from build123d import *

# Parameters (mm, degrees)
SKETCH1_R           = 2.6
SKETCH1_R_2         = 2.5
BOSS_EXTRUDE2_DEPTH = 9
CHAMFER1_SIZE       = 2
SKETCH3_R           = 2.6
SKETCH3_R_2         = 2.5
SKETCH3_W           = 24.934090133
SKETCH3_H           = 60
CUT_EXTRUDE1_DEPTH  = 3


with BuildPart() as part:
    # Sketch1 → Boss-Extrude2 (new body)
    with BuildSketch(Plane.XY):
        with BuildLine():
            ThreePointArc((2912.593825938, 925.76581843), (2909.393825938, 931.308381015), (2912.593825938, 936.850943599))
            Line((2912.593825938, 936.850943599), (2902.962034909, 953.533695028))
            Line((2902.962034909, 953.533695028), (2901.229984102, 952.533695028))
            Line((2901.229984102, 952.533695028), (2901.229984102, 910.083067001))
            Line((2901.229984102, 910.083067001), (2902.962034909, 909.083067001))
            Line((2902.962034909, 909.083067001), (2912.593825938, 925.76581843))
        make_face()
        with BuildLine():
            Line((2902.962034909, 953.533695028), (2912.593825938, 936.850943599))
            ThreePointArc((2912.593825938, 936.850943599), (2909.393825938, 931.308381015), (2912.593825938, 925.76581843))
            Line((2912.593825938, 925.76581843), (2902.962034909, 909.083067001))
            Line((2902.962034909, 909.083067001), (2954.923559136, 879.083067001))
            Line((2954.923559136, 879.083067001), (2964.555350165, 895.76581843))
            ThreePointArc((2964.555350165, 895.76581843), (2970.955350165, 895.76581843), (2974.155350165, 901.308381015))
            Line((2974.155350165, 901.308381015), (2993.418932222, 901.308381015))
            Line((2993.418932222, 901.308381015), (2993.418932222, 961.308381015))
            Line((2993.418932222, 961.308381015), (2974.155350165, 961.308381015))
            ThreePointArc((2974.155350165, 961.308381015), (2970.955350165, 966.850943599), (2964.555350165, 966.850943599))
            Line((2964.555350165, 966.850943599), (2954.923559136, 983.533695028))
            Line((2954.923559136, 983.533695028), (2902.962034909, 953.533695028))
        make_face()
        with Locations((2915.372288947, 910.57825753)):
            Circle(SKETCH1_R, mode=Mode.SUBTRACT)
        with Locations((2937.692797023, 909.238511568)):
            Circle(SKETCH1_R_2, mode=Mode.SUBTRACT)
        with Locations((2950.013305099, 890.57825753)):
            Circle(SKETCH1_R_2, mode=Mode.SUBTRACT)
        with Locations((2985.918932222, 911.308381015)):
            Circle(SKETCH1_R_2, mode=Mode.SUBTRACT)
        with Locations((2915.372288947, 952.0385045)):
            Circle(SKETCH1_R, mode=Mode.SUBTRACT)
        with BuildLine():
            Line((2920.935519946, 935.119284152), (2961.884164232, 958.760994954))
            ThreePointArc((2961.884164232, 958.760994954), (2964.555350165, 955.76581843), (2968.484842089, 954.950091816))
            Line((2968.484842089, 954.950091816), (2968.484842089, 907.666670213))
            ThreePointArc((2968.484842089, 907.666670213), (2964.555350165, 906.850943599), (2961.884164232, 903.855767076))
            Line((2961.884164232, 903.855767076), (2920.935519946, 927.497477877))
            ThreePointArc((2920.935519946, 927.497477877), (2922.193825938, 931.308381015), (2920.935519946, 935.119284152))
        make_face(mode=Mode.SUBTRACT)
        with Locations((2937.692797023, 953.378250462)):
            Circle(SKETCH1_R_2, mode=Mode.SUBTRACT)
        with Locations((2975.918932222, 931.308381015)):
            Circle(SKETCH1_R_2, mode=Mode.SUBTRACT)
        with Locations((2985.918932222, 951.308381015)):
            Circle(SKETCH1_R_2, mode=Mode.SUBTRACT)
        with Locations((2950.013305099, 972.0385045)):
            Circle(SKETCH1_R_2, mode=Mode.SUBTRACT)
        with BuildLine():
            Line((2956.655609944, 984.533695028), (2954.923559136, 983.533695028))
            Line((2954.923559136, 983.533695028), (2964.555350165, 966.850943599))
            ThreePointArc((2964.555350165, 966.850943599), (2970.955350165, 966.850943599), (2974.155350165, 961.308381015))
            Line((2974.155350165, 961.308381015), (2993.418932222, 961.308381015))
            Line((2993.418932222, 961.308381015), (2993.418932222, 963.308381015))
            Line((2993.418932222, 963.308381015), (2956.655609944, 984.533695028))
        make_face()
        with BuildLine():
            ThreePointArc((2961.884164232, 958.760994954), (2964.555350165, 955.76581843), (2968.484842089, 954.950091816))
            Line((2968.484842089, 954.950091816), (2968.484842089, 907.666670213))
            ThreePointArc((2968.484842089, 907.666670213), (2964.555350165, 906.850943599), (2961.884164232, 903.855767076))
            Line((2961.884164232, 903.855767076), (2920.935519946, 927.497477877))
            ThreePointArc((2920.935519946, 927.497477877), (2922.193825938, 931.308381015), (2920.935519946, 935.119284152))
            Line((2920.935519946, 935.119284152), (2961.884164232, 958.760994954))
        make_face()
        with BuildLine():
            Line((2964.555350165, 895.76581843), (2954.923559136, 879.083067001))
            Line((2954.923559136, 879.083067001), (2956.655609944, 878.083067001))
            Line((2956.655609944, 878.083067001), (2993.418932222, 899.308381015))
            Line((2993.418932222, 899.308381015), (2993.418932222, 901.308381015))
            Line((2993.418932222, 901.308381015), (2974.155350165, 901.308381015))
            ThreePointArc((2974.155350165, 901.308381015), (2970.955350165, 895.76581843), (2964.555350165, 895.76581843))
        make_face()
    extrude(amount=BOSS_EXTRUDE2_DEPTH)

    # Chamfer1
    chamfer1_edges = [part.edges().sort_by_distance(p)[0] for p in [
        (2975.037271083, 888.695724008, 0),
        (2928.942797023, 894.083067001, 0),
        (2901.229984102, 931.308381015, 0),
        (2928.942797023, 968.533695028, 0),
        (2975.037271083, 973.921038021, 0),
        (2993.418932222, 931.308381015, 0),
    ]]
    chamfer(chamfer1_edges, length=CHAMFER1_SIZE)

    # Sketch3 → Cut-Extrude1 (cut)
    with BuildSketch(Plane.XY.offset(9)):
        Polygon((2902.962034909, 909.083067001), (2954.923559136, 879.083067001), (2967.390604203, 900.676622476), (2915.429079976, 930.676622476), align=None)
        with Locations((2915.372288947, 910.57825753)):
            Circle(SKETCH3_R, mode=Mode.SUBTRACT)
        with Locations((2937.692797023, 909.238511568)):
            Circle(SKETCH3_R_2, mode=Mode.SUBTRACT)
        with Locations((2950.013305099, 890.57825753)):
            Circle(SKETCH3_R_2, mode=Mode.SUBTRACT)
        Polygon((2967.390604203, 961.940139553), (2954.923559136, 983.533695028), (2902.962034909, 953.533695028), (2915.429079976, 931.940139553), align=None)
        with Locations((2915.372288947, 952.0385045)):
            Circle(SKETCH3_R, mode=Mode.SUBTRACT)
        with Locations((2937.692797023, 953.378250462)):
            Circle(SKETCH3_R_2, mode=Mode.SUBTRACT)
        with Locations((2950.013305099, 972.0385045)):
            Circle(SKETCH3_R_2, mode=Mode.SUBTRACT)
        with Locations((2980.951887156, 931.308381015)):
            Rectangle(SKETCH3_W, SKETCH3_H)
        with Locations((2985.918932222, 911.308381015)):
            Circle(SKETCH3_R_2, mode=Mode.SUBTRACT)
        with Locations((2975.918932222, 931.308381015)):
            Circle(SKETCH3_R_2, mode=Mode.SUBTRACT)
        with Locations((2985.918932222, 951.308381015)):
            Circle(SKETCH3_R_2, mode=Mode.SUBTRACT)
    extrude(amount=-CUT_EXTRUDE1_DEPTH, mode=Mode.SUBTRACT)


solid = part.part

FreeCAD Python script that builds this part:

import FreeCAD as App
import Part
import Sketcher
from FreeCAD import Vector
Q = App.Units.Quantity


def edges_at(feature, points):
    """Names of the edges that pass closest to the given points."""
    edges = feature.Shape.Edges
    near = lambda p: min(range(len(edges)), key=lambda i: edges[i].distToShape(Part.Vertex(*p))[0])
    return sorted({f"Edge{near(p) + 1}" for p in points})


def add_polygon(sketch, points):
    """Adds a closed chain of lines whose ends are joined by coincident constraints."""
    first, n = sketch.GeometryCount, len(points)
    for a, b in zip(points, points[1:] + points[:1]):
        sketch.addGeometry(Part.LineSegment(App.Vector(*a, 0), App.Vector(*b, 0)), False)
    for i in range(n):
        sketch.addConstraint(Sketcher.Constraint("Coincident", first + i, 2, first + (i + 1) % n, 1))

doc = App.newDocument("Part")
params = doc.addObject("Spreadsheet::Sheet", "Params")
for row, (alias, value) in enumerate([
    ("sketch1_diameter", "5 mm"),
    ("sketch1_diameter2", "5.2 mm"),
    ("sketch1_height", "64 mm"),
    ("sketch1_length", "2 mm"),
    ("sketch1_length2", "60 mm"),
    ("pad1_length", "9 mm"),
    ("chamfer_size", "2 mm"),
    ("sketch2_diameter", "5 mm"),
    ("sketch2_diameter2", "5.2 mm"),
    ("sketch2_height", "60 mm"),
    ("sketch2_length", "60 mm"),
    ("pocket1_length", "3 mm"),
], start=1):
    params.set(f"A{row}", alias)
    params.set(f"B{row}", "=" + value)
    params.setAlias(f"B{row}", alias)

body = doc.addObject("PartDesign::Body", "Body")

sketch1 = body.newObject("Sketcher::SketchObject", "Sketch")
sketch1.AttachmentSupport = (doc.getObject("XY_Plane"), [""])
sketch1.MapMode = "FlatFace"
add_polygon(sketch1, [(2903, 953.5), (2901.2, 952.5), (2901.2, 910.1), (2903, 909.1), (2954.9, 879.1), (2956.7, 878.1), (2993.4, 899.3), (2993.4, 963.3), (2956.7, 984.5), (2954.9, 983.5)])
sketch1.addGeometry(Part.Circle(Vector(2950, 890.6, 0), Vector(0, 0, 1), 2.5), False)
sketch1.addGeometry(Part.Circle(Vector(2937.7, 909.2, 0), Vector(0, 0, 1), 2.5), False)
sketch1.addGeometry(Part.Circle(Vector(2915.4, 910.6, 0), Vector(0, 0, 1), 2.6), False)
sketch1.addGeometry(Part.Circle(Vector(2985.9, 911.3, 0), Vector(0, 0, 1), 2.5), False)
sketch1.addGeometry(Part.Circle(Vector(2915.4, 952, 0), Vector(0, 0, 1), 2.6), False)
sketch1.addGeometry(Part.Circle(Vector(2937.7, 953.4, 0), Vector(0, 0, 1), 2.5), False)
sketch1.addGeometry(Part.Circle(Vector(2950, 972, 0), Vector(0, 0, 1), 2.5), False)
sketch1.addGeometry(Part.Circle(Vector(2975.9, 931.3, 0), Vector(0, 0, 1), 2.5), False)
sketch1.addGeometry(Part.Circle(Vector(2985.9, 951.3, 0), Vector(0, 0, 1), 2.5), False)
sketch1.addConstraint(Sketcher.Constraint("Vertical", 1))
sketch1.addConstraint(Sketcher.Constraint("Vertical", 6))
sketch1.addConstraint(Sketcher.Constraint("Equal", 10, 11))
sketch1.addConstraint(Sketcher.Constraint("Equal", 11, 13))
sketch1.addConstraint(Sketcher.Constraint("Equal", 12, 14))
sketch1.addConstraint(Sketcher.Constraint("Equal", 13, 15))
sketch1.addConstraint(Sketcher.Constraint("Equal", 15, 16))
sketch1.addConstraint(Sketcher.Constraint("Equal", 16, 17))
sketch1.addConstraint(Sketcher.Constraint("Equal", 17, 18))
sketch1.addConstraint(Sketcher.Constraint("Parallel", 2, 3))
sketch1.addConstraint(Sketcher.Constraint("Parallel", 3, 4))
sketch1.addConstraint(Sketcher.Constraint("Parallel", 0, 5))
sketch1.addConstraint(Sketcher.Constraint("Parallel", 4, 7))
sketch1.addConstraint(Sketcher.Constraint("Parallel", 5, 8))
sketch1.addConstraint(Sketcher.Constraint("Parallel", 8, 9))
sketch1.addConstraint(Sketcher.Constraint("Vertical", 12, 3, 14, 3))
sketch1.addConstraint(Sketcher.Constraint("Vertical", 11, 3, 15, 3))
sketch1.addConstraint(Sketcher.Constraint("Vertical", 10, 3, 16, 3))
sketch1.addConstraint(Sketcher.Constraint("Vertical", 13, 3, 18, 3))
sketch1.addConstraint(Sketcher.Constraint("Vertical", 4, 2, 7, 2))
sketch1.addConstraint(Sketcher.Constraint("Vertical", 3, 2, 8, 2))
sketch1.addConstraint(Sketcher.Constraint("Vertical", 2, 2, 9, 2))
sketch1.addConstraint(Sketcher.Constraint("Equal", 0, 2))
sketch1.addConstraint(Sketcher.Constraint("Equal", 2, 4))
sketch1.addConstraint(Sketcher.Constraint("Diameter", 10, 5.0))
sketch1.addConstraint(Sketcher.Constraint("Diameter", 12, 5.2))
sketch1.addConstraint(Sketcher.Constraint("DistanceY", 6, 1, 6, 2, 64.0))
sketch1.addConstraint(Sketcher.Constraint("Angle", 0, Q("-150 deg")))
sketch1.addConstraint(Sketcher.Constraint("Distance", 0, 2.0))
sketch1.addConstraint(Sketcher.Constraint("Distance", 3, 60.0))
sketch1.addConstraint(Sketcher.Constraint("DistanceY", 10, 3, 12, 3, 20.0))
sketch1.addConstraint(Sketcher.Constraint("DistanceY", 14, 3, 16, 3, 20.0))
sketch1.addConstraint(Sketcher.Constraint("DistanceX", 17, 3, 13, 3, 10.0))
sketch1.addConstraint(Sketcher.Constraint("DistanceY", 13, 3, 17, 3, 20.0))
sketch1.addConstraint(Sketcher.Constraint("DistanceY", 17, 3, 18, 3, 20.0))
sketch1.addConstraint(Sketcher.Constraint("DistanceY", 5, 2, 13, 3, 12.0))
sketch1.addConstraint(Sketcher.Constraint("DistanceX", 13, 3, 5, 2, 7.5))
sketch1.addConstraint(Sketcher.Constraint("DistanceY", 1, 2, 1, 1, 42.450628))
sketch1.addConstraint(Sketcher.Constraint("DistanceY", -1, 1, 11, 3, 909.238512))
sketch1.addConstraint(Sketcher.Constraint("DistanceX", -1, 1, 12, 3, 2915.372289))
sketch1.addConstraint(Sketcher.Constraint("DistanceY", -1, 1, 13, 3, 911.308381))
sketch1.addConstraint(Sketcher.Constraint("DistanceY", -1, 1, 15, 3, 953.37825))
sketch1.addConstraint(Sketcher.Constraint("DistanceX", -1, 1, 3, 2, 2954.923559))
sketch1.addConstraint(Sketcher.Constraint("DistanceX", 11, 3, 10, 3, 12.320508))
sketch1.addConstraint(Sketcher.Constraint("DistanceX", 12, 3, 11, 3, 22.320508))
sketch1.addConstraint(Sketcher.Constraint("DistanceY", 14, 3, 0, 2, 0.495191))
sketch1.addConstraint(Sketcher.Constraint("DistanceY", 1, 2, 12, 3, 0.495191))
sketch1.setExpression("Constraints[34]", "Params.sketch1_diameter")
sketch1.setExpression("Constraints[35]", "Params.sketch1_diameter2")
sketch1.setExpression("Constraints[36]", "Params.sketch1_height")
sketch1.setExpression("Constraints[38]", "Params.sketch1_length")
sketch1.setExpression("Constraints[39]", "Params.sketch1_length2")
pad1 = body.newObject("PartDesign::Pad", "Pad")
pad1.Profile = sketch1
pad1.setExpression("Length", "Params.pad1_length")
doc.recompute()

chamfer = body.newObject("PartDesign::Chamfer", "Chamfer")
chamfer.Base = (pad1, edges_at(pad1, [
    (2975.037, 888.696, 0),
    (2928.943, 894.083, 0),
    (2901.23, 931.308, 0),
    (2928.943, 968.534, 0),
    (2975.037, 973.921, 0),
    (2993.419, 931.308, 0),
]))
chamfer.setExpression("Size", "Params.chamfer_size")

sketch2 = body.newObject("Sketcher::SketchObject", "Sketch001")
sketch2.AttachmentSupport = (doc.getObject("XY_Plane"), [""])
sketch2.MapMode = "FlatFace"
sketch2.AttachmentOffset = App.Placement(Vector(0, 0, 9), App.Rotation())
add_polygon(sketch2, [(2903, 909.1), (2954.9, 879.1), (2967.4, 900.7), (2915.4, 930.7)])
sketch2.addGeometry(Part.Circle(Vector(2950, 890.6, 0), Vector(0, 0, 1), 2.5), False)
sketch2.addGeometry(Part.Circle(Vector(2915.4, 910.6, 0), Vector(0, 0, 1), 2.6), False)
sketch2.addGeometry(Part.Circle(Vector(2937.7, 909.2, 0), Vector(0, 0, 1), 2.5), False)
add_polygon(sketch2, [(2967.4, 961.9), (2954.9, 983.5), (2903, 953.5), (2915.4, 931.9)])
sketch2.addGeometry(Part.Circle(Vector(2915.4, 952, 0), Vector(0, 0, 1), 2.6), False)
sketch2.addGeometry(Part.Circle(Vector(2937.7, 953.4, 0), Vector(0, 0, 1), 2.5), False)
sketch2.addGeometry(Part.Circle(Vector(2950, 972, 0), Vector(0, 0, 1), 2.5), False)
add_polygon(sketch2, [(2968.5, 961.3), (2968.5, 901.3), (2993.4, 901.3), (2993.4, 961.3)])
sketch2.addGeometry(Part.Circle(Vector(2985.9, 911.3, 0), Vector(0, 0, 1), 2.5), False)
sketch2.addGeometry(Part.Circle(Vector(2975.9, 931.3, 0), Vector(0, 0, 1), 2.5), False)
sketch2.addGeometry(Part.Circle(Vector(2985.9, 951.3, 0), Vector(0, 0, 1), 2.5), False)
sketch2.addConstraint(Sketcher.Constraint("Vertical", 14))
sketch2.addConstraint(Sketcher.Constraint("Horizontal", 15))
sketch2.addConstraint(Sketcher.Constraint("Vertical", 16))
sketch2.addConstraint(Sketcher.Constraint("Horizontal", 17))
sketch2.addConstraint(Sketcher.Constraint("Equal", 4, 6))
sketch2.addConstraint(Sketcher.Constraint("Equal", 5, 11))
sketch2.addConstraint(Sketcher.Constraint("Equal", 6, 12))
sketch2.addConstraint(Sketcher.Constraint("Equal", 12, 13))
sketch2.addConstraint(Sketcher.Constraint("Equal", 13, 18))
sketch2.addConstraint(Sketcher.Constraint("Equal", 18, 19))
sketch2.addConstraint(Sketcher.Constraint("Equal", 19, 20))
sketch2.addConstraint(Sketcher.Constraint("Perpendicular", 0, 1))
sketch2.addConstraint(Sketcher.Constraint("Perpendicular", 1, 2))
sketch2.addConstraint(Sketcher.Constraint("Perpendicular", 2, 3))
sketch2.addConstraint(Sketcher.Constraint("Perpendicular", 7, 8))
sketch2.addConstraint(Sketcher.Constraint("Perpendicular", 8, 9))
sketch2.addConstraint(Sketcher.Constraint("Perpendicular", 9, 10))
sketch2.addConstraint(Sketcher.Constraint("Vertical", 5, 3, 11, 3))
sketch2.addConstraint(Sketcher.Constraint("Vertical", 6, 3, 12, 3))
sketch2.addConstraint(Sketcher.Constraint("Vertical", 4, 3, 13, 3))
sketch2.addConstraint(Sketcher.Constraint("Vertical", 18, 3, 20, 3))
sketch2.addConstraint(Sketcher.Constraint("Vertical", 0, 2, 7, 2))
sketch2.addConstraint(Sketcher.Constraint("Vertical", 3, 2, 8, 2))
sketch2.addConstraint(Sketcher.Constraint("Vertical", 2, 2, 9, 2))
sketch2.addConstraint(Sketcher.Constraint("Equal", 3, 7))
sketch2.addConstraint(Sketcher.Constraint("Diameter", 4, 5.0))
sketch2.addConstraint(Sketcher.Constraint("Diameter", 5, 5.2))
sketch2.addConstraint(Sketcher.Constraint("DistanceY", 14, 2, 14, 1, 60.0))
sketch2.addConstraint(Sketcher.Constraint("Angle", 0, Q("-30 deg")))
sketch2.addConstraint(Sketcher.Constraint("Distance", 0, 60.0))
sketch2.addConstraint(Sketcher.Constraint("DistanceY", 4, 3, 5, 3, 20.0))
sketch2.addConstraint(Sketcher.Constraint("DistanceY", 11, 3, 13, 3, 20.0))
sketch2.addConstraint(Sketcher.Constraint("DistanceX", 19, 3, 18, 3, 10.0))
sketch2.addConstraint(Sketcher.Constraint("DistanceY", 18, 3, 19, 3, 20.0))
sketch2.addConstraint(Sketcher.Constraint("DistanceY", 19, 3, 20, 3, 20.0))
sketch2.addConstraint(Sketcher.Constraint("DistanceY", 14, 2, 18, 3, 10.0))
sketch2.addConstraint(Sketcher.Constraint("DistanceX", 18, 3, 15, 2, 7.5))
sketch2.addConstraint(Sketcher.Constraint("DistanceX", 15, 1, 15, 2, 24.93409))
sketch2.addConstraint(Sketcher.Constraint("DistanceX", 4, 3, 1, 2, 17.377299))
sketch2.addConstraint(Sketcher.Constraint("Distance", 1, 24.93409))
sketch2.addConstraint(Sketcher.Constraint("DistanceX", -1, 1, 5, 3, 2915.372289))
sketch2.addConstraint(Sketcher.Constraint("DistanceY", -1, 1, 6, 3, 909.238512))
sketch2.addConstraint(Sketcher.Constraint("DistanceY", -1, 1, 12, 3, 953.37825))
sketch2.addConstraint(Sketcher.Constraint("DistanceY", -1, 1, 18, 3, 911.308381))
sketch2.addConstraint(Sketcher.Constraint("DistanceX", -1, 1, 0, 2, 2954.923559))
sketch2.addConstraint(Sketcher.Constraint("DistanceY", -1, 1, 9, 2, 931.94014))
sketch2.addConstraint(Sketcher.Constraint("DistanceX", 5, 3, 6, 3, 22.320508))
sketch2.addConstraint(Sketcher.Constraint("DistanceY", 0, 2, 4, 3, 11.495191))
sketch2.addConstraint(Sketcher.Constraint("DistanceX", 1, 2, 18, 3, 18.528328))
sketch2.addConstraint(Sketcher.Constraint("DistanceY", 1, 2, 18, 3, 10.631759))
sketch2.addConstraint(Sketcher.Constraint("DistanceY", 13, 3, 7, 2, 11.495191))
sketch2.setExpression("Constraints[37]", "Params.sketch2_diameter")
sketch2.setExpression("Constraints[38]", "Params.sketch2_diameter2")
sketch2.setExpression("Constraints[39]", "Params.sketch2_height")
sketch2.setExpression("Constraints[41]", "Params.sketch2_length")
pocket1 = body.newObject("PartDesign::Pocket", "Pocket")
pocket1.Profile = sketch2
pocket1.setExpression("Length", "Params.pocket1_length")

doc.recompute()
